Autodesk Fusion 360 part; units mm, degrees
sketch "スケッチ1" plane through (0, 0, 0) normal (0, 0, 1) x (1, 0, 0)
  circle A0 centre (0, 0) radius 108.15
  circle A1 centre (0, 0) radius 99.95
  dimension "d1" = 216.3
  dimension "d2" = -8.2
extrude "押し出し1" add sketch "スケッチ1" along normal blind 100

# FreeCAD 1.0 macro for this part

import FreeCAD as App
import Part
import Sketcher

V = App.Vector

doc = App.newDocument("Part")
body = doc.addObject("PartDesign::Body", "Body")

sketch1 = body.newObject("Sketcher::SketchObject", "Sketch")
sketch1.AttachmentSupport = (doc.getObject("XY_Plane"), [""])
sketch1.MapMode = "FlatFace"
sketch1.addGeometry(Part.Circle(V(0, 0, 0), V(0, 0, 1), 108), False)
sketch1.addGeometry(Part.Circle(V(0, 0, 0), V(0, 0, 1), 100), False)
sketch1.addConstraint(Sketcher.Constraint("Coincident", 0, 3, -1, 1))
sketch1.addConstraint(Sketcher.Constraint("Coincident", 1, 3, -1, 1))
sketch1.addConstraint(Sketcher.Constraint("Diameter", 0, 216.3))
sketch1.addConstraint(Sketcher.Constraint("Diameter", 1, 199.9))
pad1 = body.newObject("PartDesign::Pad", "Pad")
pad1.Profile = sketch1
pad1.Length = 100

doc.recompute()
